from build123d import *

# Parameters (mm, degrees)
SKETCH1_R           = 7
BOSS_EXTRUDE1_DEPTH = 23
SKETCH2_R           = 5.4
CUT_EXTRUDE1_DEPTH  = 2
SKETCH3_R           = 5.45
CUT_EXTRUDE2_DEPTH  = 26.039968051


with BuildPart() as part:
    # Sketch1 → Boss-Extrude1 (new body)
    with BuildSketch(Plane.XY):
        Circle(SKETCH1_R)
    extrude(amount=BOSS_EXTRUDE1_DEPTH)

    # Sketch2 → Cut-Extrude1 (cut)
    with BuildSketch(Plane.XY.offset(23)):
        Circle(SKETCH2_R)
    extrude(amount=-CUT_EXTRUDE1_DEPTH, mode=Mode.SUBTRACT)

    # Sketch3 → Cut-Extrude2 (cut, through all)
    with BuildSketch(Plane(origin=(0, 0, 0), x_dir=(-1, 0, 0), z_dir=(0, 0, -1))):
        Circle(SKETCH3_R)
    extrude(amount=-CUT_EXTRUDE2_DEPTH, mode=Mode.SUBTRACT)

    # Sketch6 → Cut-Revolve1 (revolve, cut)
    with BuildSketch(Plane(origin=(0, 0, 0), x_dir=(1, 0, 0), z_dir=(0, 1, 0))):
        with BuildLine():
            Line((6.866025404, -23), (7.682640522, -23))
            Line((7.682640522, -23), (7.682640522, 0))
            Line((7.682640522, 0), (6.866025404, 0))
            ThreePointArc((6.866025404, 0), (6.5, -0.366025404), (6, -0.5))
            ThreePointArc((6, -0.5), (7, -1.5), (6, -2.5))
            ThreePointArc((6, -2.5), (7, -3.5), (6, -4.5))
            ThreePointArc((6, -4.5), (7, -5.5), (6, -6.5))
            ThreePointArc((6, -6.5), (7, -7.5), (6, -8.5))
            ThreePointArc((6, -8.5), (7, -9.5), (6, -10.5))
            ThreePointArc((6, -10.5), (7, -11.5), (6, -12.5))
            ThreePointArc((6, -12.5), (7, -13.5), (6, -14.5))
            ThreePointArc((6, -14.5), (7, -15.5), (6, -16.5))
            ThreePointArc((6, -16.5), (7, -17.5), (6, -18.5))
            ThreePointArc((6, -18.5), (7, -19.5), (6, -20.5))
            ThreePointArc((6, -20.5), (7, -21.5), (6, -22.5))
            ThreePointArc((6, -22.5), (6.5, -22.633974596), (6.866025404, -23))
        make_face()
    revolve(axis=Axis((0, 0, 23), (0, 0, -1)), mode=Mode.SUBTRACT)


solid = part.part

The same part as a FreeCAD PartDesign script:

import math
import FreeCAD as App
import Part
import Sketcher

doc = App.newDocument("Part")
body = doc.addObject("PartDesign::Body", "Body")

# Sketch on XY plane
sketch1 = body.newObject("Sketcher::SketchObject", "Sketch")
sketch1.AttachmentSupport = (doc.getObject("XY_Plane"), [""])
sketch1.MapMode = "FlatFace"
sketch1.addGeometry(Part.Circle(App.Vector(0, 0, 0), App.Vector(0, 0, 1), 7), False)
sketch1.addConstraint([
    Sketcher.Constraint("Coincident", 0, 3, -1, 1),
    Sketcher.Constraint("Diameter", 0, 14.0),
])
pad1 = body.newObject("PartDesign::Pad", "Pad")
pad1.Profile = sketch1
pad1.Length = 23

# Sketch on XY plane
sketch2 = body.newObject("Sketcher::SketchObject", "Sketch001")
sketch2.AttachmentSupport = (doc.getObject("XY_Plane"), [""])
sketch2.MapMode = "FlatFace"
sketch2.AttachmentOffset = App.Placement(App.Vector(0, 0, 23), App.Rotation())
sketch2.addGeometry(Part.Circle(App.Vector(0, 0, 0), App.Vector(0, 0, 1), 5), False)
sketch2.addConstraint([
    Sketcher.Constraint("Coincident", 0, 3, -1, 1),
    Sketcher.Constraint("Diameter", 0, 10.8),
])
pocket1 = body.newObject("PartDesign::Pocket", "Pocket")
pocket1.Profile = sketch2
pocket1.Length = 2

# Sketch on XY plane
sketch3 = body.newObject("Sketcher::SketchObject", "Sketch002")
sketch3.AttachmentSupport = (doc.getObject("XY_Plane"), [""])
sketch3.MapMode = "FlatFace"
sketch3.addGeometry(Part.Circle(App.Vector(0, 0, 0), App.Vector(0, 0, 1), 5), False)
sketch3.addConstraint([
    Sketcher.Constraint("Coincident", 0, 3, -1, 1),
    Sketcher.Constraint("Diameter", 0, 10.9),
])
pocket2 = body.newObject("PartDesign::Pocket", "Pocket001")
pocket2.Profile = sketch3
pocket2.Type = "ThroughAll"
pocket2.Reversed = True

# Sketch on XZ plane
sketch4 = body.newObject("Sketcher::SketchObject", "Sketch003")
sketch4.AttachmentSupport = (doc.getObject("XZ_Plane"), [""])
sketch4.MapMode = "FlatFace"
sketch4.addGeometry([
    Part.LineSegment(App.Vector(6.9, 23, 0), App.Vector(7.7, 23, 0)),  # 0
    Part.LineSegment(App.Vector(7.7, 23, 0), App.Vector(7.7, 0, 0)),  # 1
    Part.LineSegment(App.Vector(7.7, 0, 0), App.Vector(6.9, 0, 0)),  # 2
    Part.ArcOfCircle(Part.Circle(App.Vector(6, -0.5, 0), App.Vector(0, 0, 1), 1), math.radians(30), math.radians(90)),  # 3
    Part.ArcOfCircle(Part.Circle(App.Vector(6, 1.5, 0), App.Vector(0, 0, 1), 1), math.radians(-90), math.radians(90)),  # 4
    Part.ArcOfCircle(Part.Circle(App.Vector(6, 3.5, 0), App.Vector(0, 0, 1), 1), math.radians(-90), math.radians(90)),  # 5
    Part.ArcOfCircle(Part.Circle(App.Vector(6, 5.5, 0), App.Vector(0, 0, 1), 1), math.radians(-90), math.radians(90)),  # 6
    Part.ArcOfCircle(Part.Circle(App.Vector(6, 7.5, 0), App.Vector(0, 0, 1), 1), math.radians(-90), math.radians(90)),  # 7
    Part.ArcOfCircle(Part.Circle(App.Vector(6, 9.5, 0), App.Vector(0, 0, 1), 1), math.radians(-90), math.radians(90)),  # 8
    Part.ArcOfCircle(Part.Circle(App.Vector(6, 11.5, 0), App.Vector(0, 0, 1), 1), math.radians(-90), math.radians(90)),  # 9
    Part.ArcOfCircle(Part.Circle(App.Vector(6, 13.5, 0), App.Vector(0, 0, 1), 1), math.radians(-90), math.radians(90)),  # 10
    Part.ArcOfCircle(Part.Circle(App.Vector(6, 15.5, 0), App.Vector(0, 0, 1), 1), math.radians(-90), math.radians(90)),  # 11
    Part.ArcOfCircle(Part.Circle(App.Vector(6, 17.5, 0), App.Vector(0, 0, 1), 1), math.radians(-90), math.radians(90)),  # 12
    Part.ArcOfCircle(Part.Circle(App.Vector(6, 19.5, 0), App.Vector(0, 0, 1), 1), math.radians(-90), math.radians(90)),  # 13
    Part.ArcOfCircle(Part.Circle(App.Vector(6, 21.5, 0), App.Vector(0, 0, 1), 1), math.radians(-90), math.radians(90)),  # 14
    Part.ArcOfCircle(Part.Circle(App.Vector(6, 23.5, 0), App.Vector(0, 0, 1), 1), math.radians(-90), math.radians(-30)),  # 15
], False)
sketch4.addConstraint([
    Sketcher.Constraint("Coincident", 0, 2, 1, 1),
    Sketcher.Constraint("Coincident", 1, 2, 2, 1),
    Sketcher.Constraint("Coincident", 2, 2, 3, 1),
    Sketcher.Constraint("Tangent", 3, 2, 4, 1),
    Sketcher.Constraint("Tangent", 4, 2, 5, 1),
    Sketcher.Constraint("Tangent", 5, 2, 6, 1),
    Sketcher.Constraint("Tangent", 6, 2, 7, 1),
    Sketcher.Constraint("Tangent", 7, 2, 8, 1),
    Sketcher.Constraint("Tangent", 8, 2, 9, 1),
    Sketcher.Constraint("Tangent", 9, 2, 10, 1),
    Sketcher.Constraint("Tangent", 10, 2, 11, 1),
    Sketcher.Constraint("Tangent", 11, 2, 12, 1),
    Sketcher.Constraint("Tangent", 12, 2, 13, 1),
    Sketcher.Constraint("Tangent", 13, 2, 14, 1),
    Sketcher.Constraint("Tangent", 14, 2, 15, 1),
    Sketcher.Constraint("Coincident", 15, 2, 0, 1),
    Sketcher.Constraint("Horizontal", 0),
    Sketcher.Constraint("Vertical", 1),
    Sketcher.Constraint("Horizontal", 2),
    Sketcher.Constraint("Equal", 3, 4),
    Sketcher.Constraint("Equal", 4, 5),
    Sketcher.Constraint("Equal", 5, 6),
    Sketcher.Constraint("Equal", 6, 7),
    Sketcher.Constraint("Equal", 7, 8),
    Sketcher.Constraint("Equal", 8, 9),
    Sketcher.Constraint("Equal", 9, 10),
    Sketcher.Constraint("Equal", 10, 11),
    Sketcher.Constraint("Equal", 11, 12),
    Sketcher.Constraint("Equal", 12, 13),
    Sketcher.Constraint("Equal", 13, 14),
    Sketcher.Constraint("Equal", 14, 15),
    Sketcher.Constraint("PointOnObject", 1, 2, -1),
    Sketcher.Constraint("Vertical", 3, 3, 4, 3),
    Sketcher.Constraint("Vertical", 4, 3, 5, 3),
    Sketcher.Constraint("Vertical", 5, 3, 6, 3),
    Sketcher.Constraint("Vertical", 6, 3, 7, 3),
    Sketcher.Constraint("Vertical", 7, 3, 8, 3),
    Sketcher.Constraint("Vertical", 8, 3, 9, 3),
    Sketcher.Constraint("Vertical", 9, 3, 10, 3),
    Sketcher.Constraint("Vertical", 10, 3, 11, 3),
    Sketcher.Constraint("Vertical", 11, 3, 12, 3),
    Sketcher.Constraint("Vertical", 12, 3, 13, 3),
    Sketcher.Constraint("Vertical", 13, 3, 14, 3),
    Sketcher.Constraint("Vertical", 14, 3, 15, 3),
    Sketcher.Constraint("Vertical", 2, 2, 15, 2),
    Sketcher.Constraint("Radius", 3, 1.0),
    Sketcher.Constraint("DistanceY", 1, 2, 1, 1, 23.0),
    Sketcher.Constraint("DistanceX", -1, 1, 3, 3, 6.0),
    Sketcher.Constraint("DistanceX", 0, 1, 0, 2, 0.816615),
])
groove = body.newObject("PartDesign::Groove", "Groove")
groove.Profile = sketch4
groove.ReferenceAxis = (sketch4, ["V_Axis"])
groove.Angle = 360

doc.recompute()
